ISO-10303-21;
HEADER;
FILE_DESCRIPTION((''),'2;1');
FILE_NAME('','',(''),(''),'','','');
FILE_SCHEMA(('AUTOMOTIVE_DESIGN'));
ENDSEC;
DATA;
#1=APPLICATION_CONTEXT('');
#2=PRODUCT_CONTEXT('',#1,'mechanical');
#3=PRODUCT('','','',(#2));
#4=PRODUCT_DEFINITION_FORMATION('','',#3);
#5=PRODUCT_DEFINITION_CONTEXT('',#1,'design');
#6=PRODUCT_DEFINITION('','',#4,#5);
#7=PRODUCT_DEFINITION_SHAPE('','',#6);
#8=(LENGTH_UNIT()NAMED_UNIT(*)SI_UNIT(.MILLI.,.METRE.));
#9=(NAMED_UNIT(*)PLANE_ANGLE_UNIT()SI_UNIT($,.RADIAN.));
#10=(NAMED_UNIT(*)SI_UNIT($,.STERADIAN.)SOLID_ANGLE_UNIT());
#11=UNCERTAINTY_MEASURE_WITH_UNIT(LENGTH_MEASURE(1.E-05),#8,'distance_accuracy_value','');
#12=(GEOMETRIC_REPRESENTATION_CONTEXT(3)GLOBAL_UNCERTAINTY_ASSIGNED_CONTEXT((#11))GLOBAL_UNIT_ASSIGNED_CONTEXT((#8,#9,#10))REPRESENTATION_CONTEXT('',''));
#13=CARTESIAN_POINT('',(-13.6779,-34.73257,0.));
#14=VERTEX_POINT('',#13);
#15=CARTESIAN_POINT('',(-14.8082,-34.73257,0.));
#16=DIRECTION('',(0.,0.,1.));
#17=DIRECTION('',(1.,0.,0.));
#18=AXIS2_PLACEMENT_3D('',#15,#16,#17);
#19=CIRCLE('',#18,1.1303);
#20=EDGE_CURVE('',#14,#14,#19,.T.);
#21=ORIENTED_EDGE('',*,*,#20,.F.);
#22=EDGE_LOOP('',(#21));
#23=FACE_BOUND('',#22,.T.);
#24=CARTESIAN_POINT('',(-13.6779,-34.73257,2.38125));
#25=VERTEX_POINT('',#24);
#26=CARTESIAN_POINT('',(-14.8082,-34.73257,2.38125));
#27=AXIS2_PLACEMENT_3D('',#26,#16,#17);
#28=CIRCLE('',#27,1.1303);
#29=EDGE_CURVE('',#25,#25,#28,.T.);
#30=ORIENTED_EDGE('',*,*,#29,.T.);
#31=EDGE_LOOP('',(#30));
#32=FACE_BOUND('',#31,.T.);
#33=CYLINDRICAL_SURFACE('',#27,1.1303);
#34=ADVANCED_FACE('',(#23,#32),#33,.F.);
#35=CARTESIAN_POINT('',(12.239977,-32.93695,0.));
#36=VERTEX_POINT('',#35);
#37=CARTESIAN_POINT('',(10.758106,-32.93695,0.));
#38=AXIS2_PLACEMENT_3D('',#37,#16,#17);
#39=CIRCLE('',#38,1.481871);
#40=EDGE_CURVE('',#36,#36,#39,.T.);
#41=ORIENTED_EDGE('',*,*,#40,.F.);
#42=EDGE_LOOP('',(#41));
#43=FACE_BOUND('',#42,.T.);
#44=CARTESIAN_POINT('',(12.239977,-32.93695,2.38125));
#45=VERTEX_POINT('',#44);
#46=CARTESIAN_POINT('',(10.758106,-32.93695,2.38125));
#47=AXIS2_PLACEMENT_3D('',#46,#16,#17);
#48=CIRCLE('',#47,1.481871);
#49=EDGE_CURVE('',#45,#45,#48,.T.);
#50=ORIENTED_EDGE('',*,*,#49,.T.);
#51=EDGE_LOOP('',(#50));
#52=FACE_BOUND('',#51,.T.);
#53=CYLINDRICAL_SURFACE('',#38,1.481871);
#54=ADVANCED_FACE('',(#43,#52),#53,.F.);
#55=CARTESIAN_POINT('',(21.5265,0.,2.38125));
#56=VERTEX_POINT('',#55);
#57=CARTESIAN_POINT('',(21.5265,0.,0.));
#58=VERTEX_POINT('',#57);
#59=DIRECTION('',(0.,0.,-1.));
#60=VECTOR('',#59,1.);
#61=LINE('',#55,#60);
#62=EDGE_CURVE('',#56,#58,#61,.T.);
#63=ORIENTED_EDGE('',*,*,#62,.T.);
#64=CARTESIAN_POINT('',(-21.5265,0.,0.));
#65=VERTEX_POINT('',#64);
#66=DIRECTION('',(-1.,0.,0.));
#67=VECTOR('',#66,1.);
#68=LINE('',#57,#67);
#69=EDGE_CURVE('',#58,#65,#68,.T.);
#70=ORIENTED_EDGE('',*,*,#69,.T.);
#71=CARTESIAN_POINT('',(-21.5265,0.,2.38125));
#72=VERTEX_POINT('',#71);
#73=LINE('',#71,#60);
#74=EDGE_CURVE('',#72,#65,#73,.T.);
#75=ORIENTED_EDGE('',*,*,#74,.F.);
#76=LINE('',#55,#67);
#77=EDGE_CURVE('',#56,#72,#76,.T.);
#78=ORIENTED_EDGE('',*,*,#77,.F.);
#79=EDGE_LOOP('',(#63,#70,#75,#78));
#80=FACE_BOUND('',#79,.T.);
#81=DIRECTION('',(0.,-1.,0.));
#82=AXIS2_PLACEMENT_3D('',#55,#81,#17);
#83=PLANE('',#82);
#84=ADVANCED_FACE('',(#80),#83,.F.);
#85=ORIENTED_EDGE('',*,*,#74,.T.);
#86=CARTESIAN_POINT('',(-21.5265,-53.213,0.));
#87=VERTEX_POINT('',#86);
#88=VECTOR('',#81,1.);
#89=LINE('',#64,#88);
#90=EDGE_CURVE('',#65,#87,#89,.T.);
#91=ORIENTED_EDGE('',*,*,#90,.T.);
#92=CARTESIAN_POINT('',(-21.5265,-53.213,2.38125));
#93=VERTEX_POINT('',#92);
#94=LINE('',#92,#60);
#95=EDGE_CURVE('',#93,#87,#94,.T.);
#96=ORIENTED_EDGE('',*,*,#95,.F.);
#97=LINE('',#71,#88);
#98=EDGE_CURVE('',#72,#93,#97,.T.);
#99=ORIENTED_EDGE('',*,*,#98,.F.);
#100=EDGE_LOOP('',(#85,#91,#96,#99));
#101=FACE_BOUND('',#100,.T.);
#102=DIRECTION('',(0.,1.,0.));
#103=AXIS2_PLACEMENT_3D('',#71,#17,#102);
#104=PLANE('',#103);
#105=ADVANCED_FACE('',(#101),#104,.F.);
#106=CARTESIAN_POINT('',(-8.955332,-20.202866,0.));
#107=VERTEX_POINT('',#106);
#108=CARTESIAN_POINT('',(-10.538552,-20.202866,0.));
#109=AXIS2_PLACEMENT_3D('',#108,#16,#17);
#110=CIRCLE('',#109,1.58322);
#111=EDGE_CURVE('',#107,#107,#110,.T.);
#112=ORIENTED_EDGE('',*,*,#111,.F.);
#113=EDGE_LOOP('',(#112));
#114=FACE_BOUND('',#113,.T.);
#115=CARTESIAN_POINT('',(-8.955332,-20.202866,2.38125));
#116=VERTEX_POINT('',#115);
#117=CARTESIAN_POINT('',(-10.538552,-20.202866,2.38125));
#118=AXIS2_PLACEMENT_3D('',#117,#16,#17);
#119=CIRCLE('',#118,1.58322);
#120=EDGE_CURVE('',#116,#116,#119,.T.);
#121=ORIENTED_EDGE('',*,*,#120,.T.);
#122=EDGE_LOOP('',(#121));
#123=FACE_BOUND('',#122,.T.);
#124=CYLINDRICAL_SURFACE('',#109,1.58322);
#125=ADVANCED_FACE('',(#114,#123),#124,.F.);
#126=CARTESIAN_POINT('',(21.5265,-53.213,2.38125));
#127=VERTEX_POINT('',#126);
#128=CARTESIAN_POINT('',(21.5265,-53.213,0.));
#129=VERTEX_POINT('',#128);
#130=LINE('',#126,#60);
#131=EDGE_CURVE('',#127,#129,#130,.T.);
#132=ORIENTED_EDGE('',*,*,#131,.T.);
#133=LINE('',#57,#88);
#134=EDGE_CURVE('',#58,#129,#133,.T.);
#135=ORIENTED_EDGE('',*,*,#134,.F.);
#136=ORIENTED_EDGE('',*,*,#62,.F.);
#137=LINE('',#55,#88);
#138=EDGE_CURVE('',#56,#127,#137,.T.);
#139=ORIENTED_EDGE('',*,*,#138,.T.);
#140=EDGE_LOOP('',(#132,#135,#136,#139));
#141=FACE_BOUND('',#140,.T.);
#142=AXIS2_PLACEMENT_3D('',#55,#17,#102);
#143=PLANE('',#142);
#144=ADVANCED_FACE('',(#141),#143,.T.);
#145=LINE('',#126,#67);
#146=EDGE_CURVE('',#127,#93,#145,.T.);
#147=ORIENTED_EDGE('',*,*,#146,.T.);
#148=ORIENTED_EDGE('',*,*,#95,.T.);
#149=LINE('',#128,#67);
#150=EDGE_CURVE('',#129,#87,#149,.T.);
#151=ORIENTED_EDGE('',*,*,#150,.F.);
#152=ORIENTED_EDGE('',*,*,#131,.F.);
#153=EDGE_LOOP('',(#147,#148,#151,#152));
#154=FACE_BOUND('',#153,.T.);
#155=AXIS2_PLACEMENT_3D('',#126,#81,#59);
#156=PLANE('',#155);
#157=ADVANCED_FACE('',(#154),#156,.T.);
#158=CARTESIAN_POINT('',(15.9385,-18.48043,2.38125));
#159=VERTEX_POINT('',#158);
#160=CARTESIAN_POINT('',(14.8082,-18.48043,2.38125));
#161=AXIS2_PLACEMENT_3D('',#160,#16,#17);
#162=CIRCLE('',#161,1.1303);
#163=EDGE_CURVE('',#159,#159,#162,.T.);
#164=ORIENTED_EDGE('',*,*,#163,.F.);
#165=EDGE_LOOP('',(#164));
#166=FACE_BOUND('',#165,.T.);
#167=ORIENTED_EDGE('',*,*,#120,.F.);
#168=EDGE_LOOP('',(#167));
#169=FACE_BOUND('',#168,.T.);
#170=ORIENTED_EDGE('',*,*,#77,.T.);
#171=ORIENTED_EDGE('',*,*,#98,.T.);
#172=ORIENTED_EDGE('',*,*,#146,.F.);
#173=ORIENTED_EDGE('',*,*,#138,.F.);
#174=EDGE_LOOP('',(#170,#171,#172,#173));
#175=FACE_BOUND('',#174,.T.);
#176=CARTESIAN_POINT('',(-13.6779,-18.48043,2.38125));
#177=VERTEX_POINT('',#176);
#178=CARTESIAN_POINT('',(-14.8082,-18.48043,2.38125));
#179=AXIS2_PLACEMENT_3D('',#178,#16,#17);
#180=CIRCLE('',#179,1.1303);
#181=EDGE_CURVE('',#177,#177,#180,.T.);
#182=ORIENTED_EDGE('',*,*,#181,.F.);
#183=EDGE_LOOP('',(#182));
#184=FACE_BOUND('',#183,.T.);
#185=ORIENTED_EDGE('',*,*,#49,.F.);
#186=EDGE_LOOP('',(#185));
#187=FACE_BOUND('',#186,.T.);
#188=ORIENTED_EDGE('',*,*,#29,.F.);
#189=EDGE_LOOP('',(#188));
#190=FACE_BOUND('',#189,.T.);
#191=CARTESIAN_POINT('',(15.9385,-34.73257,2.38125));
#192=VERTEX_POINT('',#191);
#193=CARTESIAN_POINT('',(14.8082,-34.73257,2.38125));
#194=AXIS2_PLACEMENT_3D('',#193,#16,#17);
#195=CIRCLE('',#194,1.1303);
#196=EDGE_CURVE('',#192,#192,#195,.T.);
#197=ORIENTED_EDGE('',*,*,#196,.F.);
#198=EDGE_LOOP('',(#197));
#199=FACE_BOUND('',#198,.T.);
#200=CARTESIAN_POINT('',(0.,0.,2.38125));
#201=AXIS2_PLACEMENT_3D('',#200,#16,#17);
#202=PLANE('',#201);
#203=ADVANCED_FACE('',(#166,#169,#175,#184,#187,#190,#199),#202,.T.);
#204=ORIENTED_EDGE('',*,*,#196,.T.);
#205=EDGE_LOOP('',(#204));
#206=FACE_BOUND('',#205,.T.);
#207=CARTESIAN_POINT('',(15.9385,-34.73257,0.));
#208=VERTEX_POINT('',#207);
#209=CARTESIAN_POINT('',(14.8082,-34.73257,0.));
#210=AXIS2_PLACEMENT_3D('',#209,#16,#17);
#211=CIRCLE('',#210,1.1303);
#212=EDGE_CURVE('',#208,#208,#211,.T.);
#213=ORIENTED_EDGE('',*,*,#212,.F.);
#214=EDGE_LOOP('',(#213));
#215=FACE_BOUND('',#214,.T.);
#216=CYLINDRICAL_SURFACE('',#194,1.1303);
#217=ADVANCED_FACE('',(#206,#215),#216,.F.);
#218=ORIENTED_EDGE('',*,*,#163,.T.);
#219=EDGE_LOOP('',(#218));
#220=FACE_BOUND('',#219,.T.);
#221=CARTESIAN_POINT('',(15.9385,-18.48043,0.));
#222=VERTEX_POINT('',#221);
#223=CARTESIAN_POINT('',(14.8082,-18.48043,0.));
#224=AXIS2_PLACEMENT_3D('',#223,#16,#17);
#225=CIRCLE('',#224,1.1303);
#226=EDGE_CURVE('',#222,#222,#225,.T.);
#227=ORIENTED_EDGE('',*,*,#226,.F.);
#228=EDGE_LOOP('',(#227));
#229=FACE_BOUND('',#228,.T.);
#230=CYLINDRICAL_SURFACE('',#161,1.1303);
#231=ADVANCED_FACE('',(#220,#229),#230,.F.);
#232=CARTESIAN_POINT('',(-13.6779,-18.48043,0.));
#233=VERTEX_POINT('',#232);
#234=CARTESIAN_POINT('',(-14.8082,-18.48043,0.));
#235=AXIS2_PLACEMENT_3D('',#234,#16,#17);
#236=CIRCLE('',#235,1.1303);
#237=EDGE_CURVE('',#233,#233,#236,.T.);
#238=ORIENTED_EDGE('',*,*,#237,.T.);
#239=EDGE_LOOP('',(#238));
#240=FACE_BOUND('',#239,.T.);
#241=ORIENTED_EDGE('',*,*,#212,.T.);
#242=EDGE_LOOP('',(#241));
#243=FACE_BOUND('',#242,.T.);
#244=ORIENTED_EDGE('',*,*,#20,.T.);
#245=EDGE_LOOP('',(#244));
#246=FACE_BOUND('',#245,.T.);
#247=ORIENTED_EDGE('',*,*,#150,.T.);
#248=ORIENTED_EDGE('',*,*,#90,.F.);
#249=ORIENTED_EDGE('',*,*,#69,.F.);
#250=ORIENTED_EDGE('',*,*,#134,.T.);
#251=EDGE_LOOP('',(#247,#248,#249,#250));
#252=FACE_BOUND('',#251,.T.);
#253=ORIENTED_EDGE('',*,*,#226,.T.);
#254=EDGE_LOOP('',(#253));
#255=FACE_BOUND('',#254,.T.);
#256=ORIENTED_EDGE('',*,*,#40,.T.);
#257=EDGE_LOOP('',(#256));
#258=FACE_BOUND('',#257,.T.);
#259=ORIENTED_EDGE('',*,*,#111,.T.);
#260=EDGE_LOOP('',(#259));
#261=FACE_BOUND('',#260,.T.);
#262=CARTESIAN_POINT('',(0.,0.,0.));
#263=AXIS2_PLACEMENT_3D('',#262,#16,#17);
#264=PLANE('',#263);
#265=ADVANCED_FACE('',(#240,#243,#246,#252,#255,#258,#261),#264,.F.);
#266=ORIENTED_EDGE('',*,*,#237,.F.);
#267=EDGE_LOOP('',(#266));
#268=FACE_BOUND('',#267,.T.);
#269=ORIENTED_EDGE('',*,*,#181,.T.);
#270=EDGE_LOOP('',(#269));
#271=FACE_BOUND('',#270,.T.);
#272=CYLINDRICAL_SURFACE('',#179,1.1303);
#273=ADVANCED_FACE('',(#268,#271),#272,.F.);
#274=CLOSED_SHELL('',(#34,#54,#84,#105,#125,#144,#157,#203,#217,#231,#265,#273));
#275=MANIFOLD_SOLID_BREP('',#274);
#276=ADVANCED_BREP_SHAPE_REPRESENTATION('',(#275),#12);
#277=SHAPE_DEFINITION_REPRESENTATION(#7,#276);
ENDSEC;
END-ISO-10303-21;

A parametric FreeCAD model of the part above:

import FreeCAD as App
import Part
import Sketcher
Q = App.Units.Quantity

doc = App.newDocument("Part")
body = doc.addObject("PartDesign::Body", "Body")

sketch1 = body.newObject("Sketcher::SketchObject", "Sketch")
sketch1.AttachmentSupport = (doc.getObject("XY_Plane"), [""])
sketch1.MapMode = "FlatFace"
sketch1.addGeometry([
    Part.LineSegment(App.Vector(-22, 0, 0), App.Vector(-22, -53, 0)),
    Part.LineSegment(App.Vector(-22, -53, 0), App.Vector(22, -53, 0)),
    Part.LineSegment(App.Vector(22, -53, 0), App.Vector(22, 0, 0)),
    Part.LineSegment(App.Vector(22, 0, 0), App.Vector(-22, 0, 0)),
], False)
sketch1.addConstraint([
    Sketcher.Constraint("Coincident", 0, 2, 1, 1),
    Sketcher.Constraint("Coincident", 1, 2, 2, 1),
    Sketcher.Constraint("Coincident", 2, 2, 3, 1),
    Sketcher.Constraint("Coincident", 3, 2, 0, 1),
    Sketcher.Constraint("Vertical", 0),
    Sketcher.Constraint("Horizontal", 1),
    Sketcher.Constraint("Vertical", 2),
    Sketcher.Constraint("Horizontal", 3),
    Sketcher.Constraint("Symmetric", 2, 2, 3, 2, -1, 1),
    Sketcher.Constraint("DistanceX", 1, 1, 1, 2, Q("1.695 in")),
    Sketcher.Constraint("DistanceY", 0, 2, 0, 1, Q("2.095 in")),
])
pad1 = body.newObject("PartDesign::Pad", "Pad")
pad1.Profile = sketch1
pad1.Length = Q("0.09375 in")

sketch2 = body.newObject("Sketcher::SketchObject", "Sketch001")
sketch2.AttachmentSupport = (doc.getObject("XY_Plane"), [""])
sketch2.MapMode = "FlatFace"
sketch2.AttachmentOffset = App.Placement(App.Vector(0, 0, 0.09375 * 25.4), App.Rotation())
sketch2.addGeometry([
    Part.Circle(App.Vector(-14.8, -18.5, 0), App.Vector(0, 0, 1), 1.1),
    Part.Circle(App.Vector(14.8, -18.5, 0), App.Vector(0, 0, 1), 1.1),
    Part.Circle(App.Vector(-14.8, -34.7, 0), App.Vector(0, 0, 1), 1.1),
    Part.Circle(App.Vector(14.8, -34.7, 0), App.Vector(0, 0, 1), 1.1),
], False)
sketch2.addConstraint([
    Sketcher.Constraint("Equal", 0, 1),
    Sketcher.Constraint("Equal", 1, 2),
    Sketcher.Constraint("Equal", 2, 3),
    Sketcher.Constraint("Symmetric", 0, 3, 1, 3, -2),
    Sketcher.Constraint("Symmetric", 2, 3, 3, 3, -2),
    Sketcher.Constraint("Vertical", 0, 3, 2, 3),
    Sketcher.Constraint("Diameter", 0, Q("0.089 in")),
    Sketcher.Constraint("DistanceX", 0, 3, -1, 1, Q("0.583 in")),
    Sketcher.Constraint("DistanceY", 0, 3, -1, 1, Q("18.48043 mm")),
    Sketcher.Constraint("DistanceY", 2, 3, -1, 1, Q("34.73257 mm")),
])
doc.recompute()
hole = body.newObject("PartDesign::Hole", "Hole")
hole.Profile = sketch2
hole.ThreadType = "None"
hole.Diameter = Q("0.089 in")
hole.DepthType = "ThroughAll"

sketch3 = body.newObject("Sketcher::SketchObject", "Sketch002")
sketch3.AttachmentSupport = (doc.getObject("XY_Plane"), [""])
sketch3.MapMode = "FlatFace"
sketch3.AttachmentOffset = App.Placement(App.Vector(0, 0, 0.09375 * 25.4), App.Rotation())
sketch3.addGeometry([
    Part.Circle(App.Vector(-10.5, -20.2, 0), App.Vector(0, 0, 1), 1.6),
    Part.Circle(App.Vector(10.8, -32.9, 0), App.Vector(0, 0, 1), 1.5),
], False)
sketch3.addConstraint([
    Sketcher.Constraint("Diameter", 0, Q("3.166441 mm")),
    Sketcher.Constraint("Diameter", 1, Q("2.963742 mm")),
    Sketcher.Constraint("DistanceY", 1, 3, -1, 1, Q("32.93695 mm")),
    Sketcher.Constraint("DistanceX", 0, 3, -1, 1, Q("10.538552 mm")),
    Sketcher.Constraint("DistanceY", 0, 3, -1, 1, Q("20.202866 mm")),
    Sketcher.Constraint("DistanceX", -1, 1, 1, 3, Q("10.758106 mm")),
])
pocket1 = body.newObject("PartDesign::Pocket", "Pocket")
pocket1.Profile = sketch3
pocket1.Type = "ThroughAll"

doc.recompute()
